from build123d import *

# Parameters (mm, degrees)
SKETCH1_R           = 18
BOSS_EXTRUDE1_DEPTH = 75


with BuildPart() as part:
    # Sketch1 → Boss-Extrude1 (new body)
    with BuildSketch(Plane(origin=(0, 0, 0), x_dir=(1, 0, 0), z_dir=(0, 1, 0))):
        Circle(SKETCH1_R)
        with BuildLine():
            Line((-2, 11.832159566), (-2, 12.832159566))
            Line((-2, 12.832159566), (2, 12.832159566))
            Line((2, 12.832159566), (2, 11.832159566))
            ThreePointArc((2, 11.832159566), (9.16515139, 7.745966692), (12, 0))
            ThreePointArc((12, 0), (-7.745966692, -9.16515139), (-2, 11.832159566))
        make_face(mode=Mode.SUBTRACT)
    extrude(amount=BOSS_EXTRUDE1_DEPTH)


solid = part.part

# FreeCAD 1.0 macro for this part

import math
import FreeCAD as App
import Part
import Sketcher
from FreeCAD import Vector
Q = App.Units.Quantity

doc = App.newDocument("Part")
params = doc.addObject("Spreadsheet::Sheet", "Params")
for row, (alias, value) in enumerate([
    ("sketch1_diameter", "36 mm"),
    ("sketch1_radius", "12 mm"),
    ("sketch1_width", "4 mm"),
    ("sketch1_height", "1 mm"),
    ("pad1_length", "75 mm"),
], start=1):
    params.set(f"A{row}", alias)
    params.set(f"B{row}", "=" + value)
    params.setAlias(f"B{row}", alias)

body = doc.addObject("PartDesign::Body", "Body")

# Sketch on XZ plane
sketch1 = body.newObject("Sketcher::SketchObject", "Sketch")
sketch1.AttachmentSupport = (doc.getObject("XZ_Plane"), [""])
sketch1.MapMode = "FlatFace"
sketch1.addGeometry([
    Part.Circle(Vector(0, 0, 0), Vector(0, 0, 1), 18),  # 0
    Part.ArcOfCircle(Part.Circle(Vector(0, 0, 0), Vector(0, 0, 1), 12), math.radians(0), math.radians(260)),  # 1
    Part.LineSegment(Vector(-2, -11.8, 0), Vector(-2, -12.8, 0)),  # 2
    Part.LineSegment(Vector(-2, -12.8, 0), Vector(2, -12.8, 0)),  # 3
    Part.LineSegment(Vector(2, -12.8, 0), Vector(2, -11.8, 0)),  # 4
    Part.ArcOfCircle(Part.Circle(Vector(0, 0, 0), Vector(0, 0, 1), 12), math.radians(-80), math.radians(0)),  # 5
], False)
sketch1.addConstraint([
    Sketcher.Constraint("Coincident", 1, 2, 2, 1),
    Sketcher.Constraint("Coincident", 2, 2, 3, 1),
    Sketcher.Constraint("Coincident", 3, 2, 4, 1),
    Sketcher.Constraint("Coincident", 4, 2, 5, 1),
    Sketcher.Constraint("Tangent", 5, 2, 1, 1),
    Sketcher.Constraint("Vertical", 2),
    Sketcher.Constraint("Horizontal", 3),
    Sketcher.Constraint("Vertical", 4),
    Sketcher.Constraint("Coincident", 0, 3, -1, 1),
    Sketcher.Constraint("Coincident", 1, 3, -1, 1),
    Sketcher.Constraint("Equal", 1, 5),
    Sketcher.Constraint("PointOnObject", 5, 2, -1),
    Sketcher.Constraint("Horizontal", 1, 2, 4, 2),
    Sketcher.Constraint("Diameter", 0, Q("36 mm")),
    Sketcher.Constraint("Radius", 1, Q("12 mm")),
    Sketcher.Constraint("DistanceX", 3, 1, 3, 2, Q("4 mm")),
    Sketcher.Constraint("DistanceY", 2, 2, 2, 1, Q("1 mm")),
])
sketch1.setExpression("Constraints[13]", "Params.sketch1_diameter")
sketch1.setExpression("Constraints[14]", "Params.sketch1_radius")
sketch1.setExpression("Constraints[15]", "Params.sketch1_width")
sketch1.setExpression("Constraints[16]", "Params.sketch1_height")
pad1 = body.newObject("PartDesign::Pad", "Pad")
pad1.Profile = sketch1
pad1.setExpression("Length", "Params.pad1_length")
pad1.Reversed = True

doc.recompute()
